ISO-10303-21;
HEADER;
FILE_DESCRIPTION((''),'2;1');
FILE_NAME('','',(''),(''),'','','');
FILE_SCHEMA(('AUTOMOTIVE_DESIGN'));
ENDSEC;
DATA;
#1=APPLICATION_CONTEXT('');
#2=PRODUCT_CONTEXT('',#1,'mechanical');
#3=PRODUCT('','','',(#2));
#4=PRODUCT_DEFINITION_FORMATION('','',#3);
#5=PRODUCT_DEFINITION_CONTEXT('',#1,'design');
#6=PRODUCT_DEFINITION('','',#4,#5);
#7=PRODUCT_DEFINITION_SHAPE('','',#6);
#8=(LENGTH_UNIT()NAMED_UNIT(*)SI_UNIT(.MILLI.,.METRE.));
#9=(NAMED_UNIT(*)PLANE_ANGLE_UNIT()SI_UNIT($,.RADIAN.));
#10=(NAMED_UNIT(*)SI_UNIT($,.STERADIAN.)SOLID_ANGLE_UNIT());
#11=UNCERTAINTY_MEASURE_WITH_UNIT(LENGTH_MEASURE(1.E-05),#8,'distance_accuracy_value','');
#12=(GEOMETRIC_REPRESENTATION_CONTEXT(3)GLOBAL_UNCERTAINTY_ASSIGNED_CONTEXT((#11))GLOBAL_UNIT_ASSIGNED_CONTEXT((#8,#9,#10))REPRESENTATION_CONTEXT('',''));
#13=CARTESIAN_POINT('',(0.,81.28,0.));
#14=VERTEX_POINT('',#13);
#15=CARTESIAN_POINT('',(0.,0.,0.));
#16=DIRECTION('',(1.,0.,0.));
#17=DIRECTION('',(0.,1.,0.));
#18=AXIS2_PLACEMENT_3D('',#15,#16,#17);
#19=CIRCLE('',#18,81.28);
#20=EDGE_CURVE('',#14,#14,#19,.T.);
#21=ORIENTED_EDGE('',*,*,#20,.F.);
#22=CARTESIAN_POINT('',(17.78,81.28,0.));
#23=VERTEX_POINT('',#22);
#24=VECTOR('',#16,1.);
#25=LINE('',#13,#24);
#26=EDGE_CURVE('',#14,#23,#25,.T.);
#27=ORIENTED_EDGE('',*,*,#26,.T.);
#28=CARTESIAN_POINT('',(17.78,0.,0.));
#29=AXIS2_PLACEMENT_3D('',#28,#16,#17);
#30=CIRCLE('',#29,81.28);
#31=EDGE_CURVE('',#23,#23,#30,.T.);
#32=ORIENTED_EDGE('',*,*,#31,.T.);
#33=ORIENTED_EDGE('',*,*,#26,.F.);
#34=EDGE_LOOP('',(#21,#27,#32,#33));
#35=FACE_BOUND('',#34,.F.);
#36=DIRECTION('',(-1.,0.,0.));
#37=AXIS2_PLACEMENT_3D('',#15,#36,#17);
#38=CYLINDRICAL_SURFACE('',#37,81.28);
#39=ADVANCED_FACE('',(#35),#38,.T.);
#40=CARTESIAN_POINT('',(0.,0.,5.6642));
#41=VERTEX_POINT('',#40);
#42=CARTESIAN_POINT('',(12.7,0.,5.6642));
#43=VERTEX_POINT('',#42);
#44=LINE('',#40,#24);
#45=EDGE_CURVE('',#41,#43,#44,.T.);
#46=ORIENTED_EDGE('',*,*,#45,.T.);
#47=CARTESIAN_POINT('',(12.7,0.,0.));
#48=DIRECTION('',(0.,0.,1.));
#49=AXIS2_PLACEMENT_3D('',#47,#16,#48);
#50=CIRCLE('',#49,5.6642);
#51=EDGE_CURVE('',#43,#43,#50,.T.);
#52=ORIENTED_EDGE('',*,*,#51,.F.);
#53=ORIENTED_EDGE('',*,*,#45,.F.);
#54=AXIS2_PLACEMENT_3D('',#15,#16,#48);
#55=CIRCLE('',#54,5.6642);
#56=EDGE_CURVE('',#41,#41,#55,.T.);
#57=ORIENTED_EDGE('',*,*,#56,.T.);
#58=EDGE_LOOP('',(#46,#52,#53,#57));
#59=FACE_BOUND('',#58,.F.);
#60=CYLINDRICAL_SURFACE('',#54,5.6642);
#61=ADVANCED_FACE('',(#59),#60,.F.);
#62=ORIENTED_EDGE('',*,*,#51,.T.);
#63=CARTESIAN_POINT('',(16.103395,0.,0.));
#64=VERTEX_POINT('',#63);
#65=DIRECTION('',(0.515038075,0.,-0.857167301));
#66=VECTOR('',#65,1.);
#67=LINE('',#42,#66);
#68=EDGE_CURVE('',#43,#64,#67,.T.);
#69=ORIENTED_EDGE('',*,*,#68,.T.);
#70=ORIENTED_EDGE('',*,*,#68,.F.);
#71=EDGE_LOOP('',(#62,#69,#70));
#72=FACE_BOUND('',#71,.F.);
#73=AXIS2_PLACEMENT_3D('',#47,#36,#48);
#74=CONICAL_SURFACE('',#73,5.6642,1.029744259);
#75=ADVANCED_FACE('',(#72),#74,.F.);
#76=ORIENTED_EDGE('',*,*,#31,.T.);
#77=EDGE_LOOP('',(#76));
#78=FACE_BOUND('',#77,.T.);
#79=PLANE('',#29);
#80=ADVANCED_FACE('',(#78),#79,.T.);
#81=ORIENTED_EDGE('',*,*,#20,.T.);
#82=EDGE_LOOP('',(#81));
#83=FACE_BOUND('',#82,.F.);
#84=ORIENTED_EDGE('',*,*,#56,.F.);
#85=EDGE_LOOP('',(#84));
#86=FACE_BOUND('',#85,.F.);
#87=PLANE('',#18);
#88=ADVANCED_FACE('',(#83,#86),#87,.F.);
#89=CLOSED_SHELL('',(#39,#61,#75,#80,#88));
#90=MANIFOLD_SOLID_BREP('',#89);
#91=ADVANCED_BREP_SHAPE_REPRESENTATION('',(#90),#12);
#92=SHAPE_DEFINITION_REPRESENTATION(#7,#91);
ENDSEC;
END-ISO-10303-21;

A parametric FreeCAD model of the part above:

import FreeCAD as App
import Part
import Sketcher

V = App.Vector
Q = App.Units.Quantity

doc = App.newDocument("Part")
body = doc.addObject("PartDesign::Body", "Body")

sketch1 = body.newObject("Sketcher::SketchObject", "Sketch")
sketch1.AttachmentSupport = (doc.getObject("YZ_Plane"), [""])
sketch1.MapMode = "FlatFace"
sketch1.addGeometry(Part.Circle(V(0, 0, 0), V(0, 0, 1), 81), False)
sketch1.addConstraint(Sketcher.Constraint("Coincident", 0, 3, -1, 1))
sketch1.addConstraint(Sketcher.Constraint("Diameter", 0, Q("6.4 in")))
pad1 = body.newObject("PartDesign::Pad", "Pad")
pad1.Profile = sketch1
pad1.Length = Q("0.7 in")

sketch2 = body.newObject("Sketcher::SketchObject", "Sketch001")
sketch2.AttachmentSupport = (doc.getObject("YZ_Plane"), [""])
sketch2.MapMode = "FlatFace"
sketch2.addGeometry(Part.Circle(V(0, 0, 0), V(0, 0, 1), 6), False)
sketch2.addConstraint(Sketcher.Constraint("Coincident", 0, 3, -1, 1))
sketch2.addConstraint(Sketcher.Constraint("Diameter", 0, Q("0.446 in")))
doc.recompute()
hole = body.newObject("PartDesign::Hole", "Hole")
hole.Profile = sketch2
hole.ThreadType = "None"
hole.Diameter = Q("0.446 in")
hole.DepthType = "Dimension"
hole.Depth = Q("0.5 in")
hole.DrillPoint = "Angled"
hole.DrillPointAngle = 118
hole.Reversed = True

doc.recompute()
